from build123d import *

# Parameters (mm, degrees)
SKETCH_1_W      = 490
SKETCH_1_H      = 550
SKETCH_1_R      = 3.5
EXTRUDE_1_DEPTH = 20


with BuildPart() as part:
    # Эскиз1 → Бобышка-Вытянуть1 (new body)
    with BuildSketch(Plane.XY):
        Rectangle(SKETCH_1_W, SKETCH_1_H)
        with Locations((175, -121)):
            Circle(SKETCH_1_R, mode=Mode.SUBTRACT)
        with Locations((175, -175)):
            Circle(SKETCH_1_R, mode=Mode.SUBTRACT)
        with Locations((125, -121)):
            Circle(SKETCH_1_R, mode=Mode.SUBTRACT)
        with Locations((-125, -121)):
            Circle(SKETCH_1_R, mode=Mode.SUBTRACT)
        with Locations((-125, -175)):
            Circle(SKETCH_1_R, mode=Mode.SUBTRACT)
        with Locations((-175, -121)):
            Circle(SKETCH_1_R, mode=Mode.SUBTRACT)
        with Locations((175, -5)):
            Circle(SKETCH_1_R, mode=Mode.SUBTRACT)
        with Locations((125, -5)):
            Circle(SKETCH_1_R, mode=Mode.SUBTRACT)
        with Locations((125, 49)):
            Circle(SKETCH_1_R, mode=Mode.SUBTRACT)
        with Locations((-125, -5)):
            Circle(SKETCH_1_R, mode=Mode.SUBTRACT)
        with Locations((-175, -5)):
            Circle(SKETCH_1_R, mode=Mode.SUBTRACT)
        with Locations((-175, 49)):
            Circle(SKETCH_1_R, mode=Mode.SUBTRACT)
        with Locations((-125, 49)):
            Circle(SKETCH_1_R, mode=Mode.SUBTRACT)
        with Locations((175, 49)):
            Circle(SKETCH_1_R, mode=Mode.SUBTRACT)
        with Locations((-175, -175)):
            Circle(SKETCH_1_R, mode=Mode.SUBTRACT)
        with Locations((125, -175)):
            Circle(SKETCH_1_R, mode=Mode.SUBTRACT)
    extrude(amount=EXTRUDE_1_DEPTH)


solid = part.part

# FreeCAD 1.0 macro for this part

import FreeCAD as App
import Part
import Sketcher
from FreeCAD import Vector
Q = App.Units.Quantity


def add_polygon(sketch, points):
    """Adds a closed chain of lines whose ends are joined by coincident constraints."""
    first, n = sketch.GeometryCount, len(points)
    for a, b in zip(points, points[1:] + points[:1]):
        sketch.addGeometry(Part.LineSegment(App.Vector(*a, 0), App.Vector(*b, 0)), False)
    for i in range(n):
        sketch.addConstraint(Sketcher.Constraint("Coincident", first + i, 2, first + (i + 1) % n, 1))

doc = App.newDocument("Part")
body = doc.addObject("PartDesign::Body", "Body")

# Sketch on XY plane
sketch1 = doc.addObject("Sketcher::SketchObject", "Sketch")
body.addObject(sketch1)
sketch1.AttachmentSupport = (doc.XY_Plane, [""])
sketch1.MapMode = "FlatFace"
add_polygon(sketch1, [(-245, 275), (-245, -275), (245, -275), (245, 275)])  # lines 0-3
sketch1.addGeometry(Part.Circle(Vector(-175, -175, 0), Vector(0, 0, 1), 3.5), False)  # 4
sketch1.addGeometry(Part.Circle(Vector(-125, -175, 0), Vector(0, 0, 1), 3.5), False)  # 5
sketch1.addGeometry(Part.Circle(Vector(-175, -121, 0), Vector(0, 0, 1), 3.5), False)  # 6
sketch1.addGeometry(Part.Circle(Vector(-125, -121, 0), Vector(0, 0, 1), 3.5), False)  # 7
sketch1.addGeometry(Part.Circle(Vector(125, -175, 0), Vector(0, 0, 1), 3.5), False)  # 8
sketch1.addGeometry(Part.Circle(Vector(175, -175, 0), Vector(0, 0, 1), 3.5), False)  # 9
sketch1.addGeometry(Part.Circle(Vector(125, -121, 0), Vector(0, 0, 1), 3.5), False)  # 10
sketch1.addGeometry(Part.Circle(Vector(175, -121, 0), Vector(0, 0, 1), 3.5), False)  # 11
sketch1.addGeometry(Part.Circle(Vector(-175, -5, 0), Vector(0, 0, 1), 3.5), False)  # 12
sketch1.addGeometry(Part.Circle(Vector(-125, -5, 0), Vector(0, 0, 1), 3.5), False)  # 13
sketch1.addGeometry(Part.Circle(Vector(-175, 49, 0), Vector(0, 0, 1), 3.5), False)  # 14
sketch1.addGeometry(Part.Circle(Vector(-125, 49, 0), Vector(0, 0, 1), 3.5), False)  # 15
sketch1.addGeometry(Part.Circle(Vector(125, -5, 0), Vector(0, 0, 1), 3.5), False)  # 16
sketch1.addGeometry(Part.Circle(Vector(175, -5, 0), Vector(0, 0, 1), 3.5), False)  # 17
sketch1.addGeometry(Part.Circle(Vector(125, 49, 0), Vector(0, 0, 1), 3.5), False)  # 18
sketch1.addGeometry(Part.Circle(Vector(175, 49, 0), Vector(0, 0, 1), 3.5), False)  # 19
sketch1.addConstraint([
    Sketcher.Constraint("Vertical", 0),
    Sketcher.Constraint("Horizontal", 1),
    Sketcher.Constraint("Vertical", 2),
    Sketcher.Constraint("Horizontal", 3),
    Sketcher.Constraint("Equal", 4, 5),
    Sketcher.Constraint("Equal", 5, 6),
    Sketcher.Constraint("Equal", 6, 7),
    Sketcher.Constraint("Equal", 7, 8),
    Sketcher.Constraint("Equal", 8, 9),
    Sketcher.Constraint("Equal", 9, 10),
    Sketcher.Constraint("Equal", 10, 11),
    Sketcher.Constraint("Equal", 11, 12),
    Sketcher.Constraint("Equal", 12, 13),
    Sketcher.Constraint("Equal", 13, 14),
    Sketcher.Constraint("Equal", 14, 15),
    Sketcher.Constraint("Equal", 15, 16),
    Sketcher.Constraint("Equal", 16, 17),
    Sketcher.Constraint("Equal", 17, 18),
    Sketcher.Constraint("Equal", 18, 19),
    Sketcher.Constraint("Symmetric", 0, 2, 2, 2, -1, 1),
    Sketcher.Constraint("Symmetric", 5, 3, 8, 3, -2),
    Sketcher.Constraint("Symmetric", 4, 3, 9, 3, -2),
    Sketcher.Constraint("Symmetric", 7, 3, 10, 3, -2),
    Sketcher.Constraint("Symmetric", 6, 3, 11, 3, -2),
    Sketcher.Constraint("Symmetric", 13, 3, 16, 3, -2),
    Sketcher.Constraint("Symmetric", 12, 3, 17, 3, -2),
    Sketcher.Constraint("Symmetric", 15, 3, 18, 3, -2),
    Sketcher.Constraint("Symmetric", 14, 3, 19, 3, -2),
    Sketcher.Constraint("Horizontal", 4, 3, 5, 3),
    Sketcher.Constraint("Horizontal", 6, 3, 7, 3),
    Sketcher.Constraint("Horizontal", 12, 3, 13, 3),
    Sketcher.Constraint("Horizontal", 14, 3, 15, 3),
    Sketcher.Constraint("Vertical", 4, 3, 6, 3),
    Sketcher.Constraint("Vertical", 5, 3, 7, 3),
    Sketcher.Constraint("Vertical", 6, 3, 12, 3),
    Sketcher.Constraint("Vertical", 7, 3, 13, 3),
    Sketcher.Constraint("Vertical", 12, 3, 14, 3),
    Sketcher.Constraint("Vertical", 13, 3, 15, 3),
    Sketcher.Constraint("Diameter", 4, Q("7 mm")),
    Sketcher.Constraint("DistanceX", 1, 1, 1, 2, Q("490 mm")),
    Sketcher.Constraint("DistanceY", 0, 2, 0, 1, Q("550 mm")),
    Sketcher.Constraint("DistanceX", 4, 3, -1, 1, Q("175 mm")),
    Sketcher.Constraint("DistanceY", 4, 3, -1, 1, Q("175 mm")),
    Sketcher.Constraint("DistanceX", 5, 3, -1, 1, Q("125 mm")),
    Sketcher.Constraint("DistanceY", 6, 3, -1, 1, Q("121 mm")),
    Sketcher.Constraint("DistanceY", 12, 3, -1, 1, Q("5 mm")),
    Sketcher.Constraint("DistanceY", -1, 1, 14, 3, Q("49 mm")),
])
pad1 = doc.addObject("PartDesign::Pad", "Pad")
body.addObject(pad1)
pad1.Profile = sketch1
pad1.Length = 20

doc.recompute()
